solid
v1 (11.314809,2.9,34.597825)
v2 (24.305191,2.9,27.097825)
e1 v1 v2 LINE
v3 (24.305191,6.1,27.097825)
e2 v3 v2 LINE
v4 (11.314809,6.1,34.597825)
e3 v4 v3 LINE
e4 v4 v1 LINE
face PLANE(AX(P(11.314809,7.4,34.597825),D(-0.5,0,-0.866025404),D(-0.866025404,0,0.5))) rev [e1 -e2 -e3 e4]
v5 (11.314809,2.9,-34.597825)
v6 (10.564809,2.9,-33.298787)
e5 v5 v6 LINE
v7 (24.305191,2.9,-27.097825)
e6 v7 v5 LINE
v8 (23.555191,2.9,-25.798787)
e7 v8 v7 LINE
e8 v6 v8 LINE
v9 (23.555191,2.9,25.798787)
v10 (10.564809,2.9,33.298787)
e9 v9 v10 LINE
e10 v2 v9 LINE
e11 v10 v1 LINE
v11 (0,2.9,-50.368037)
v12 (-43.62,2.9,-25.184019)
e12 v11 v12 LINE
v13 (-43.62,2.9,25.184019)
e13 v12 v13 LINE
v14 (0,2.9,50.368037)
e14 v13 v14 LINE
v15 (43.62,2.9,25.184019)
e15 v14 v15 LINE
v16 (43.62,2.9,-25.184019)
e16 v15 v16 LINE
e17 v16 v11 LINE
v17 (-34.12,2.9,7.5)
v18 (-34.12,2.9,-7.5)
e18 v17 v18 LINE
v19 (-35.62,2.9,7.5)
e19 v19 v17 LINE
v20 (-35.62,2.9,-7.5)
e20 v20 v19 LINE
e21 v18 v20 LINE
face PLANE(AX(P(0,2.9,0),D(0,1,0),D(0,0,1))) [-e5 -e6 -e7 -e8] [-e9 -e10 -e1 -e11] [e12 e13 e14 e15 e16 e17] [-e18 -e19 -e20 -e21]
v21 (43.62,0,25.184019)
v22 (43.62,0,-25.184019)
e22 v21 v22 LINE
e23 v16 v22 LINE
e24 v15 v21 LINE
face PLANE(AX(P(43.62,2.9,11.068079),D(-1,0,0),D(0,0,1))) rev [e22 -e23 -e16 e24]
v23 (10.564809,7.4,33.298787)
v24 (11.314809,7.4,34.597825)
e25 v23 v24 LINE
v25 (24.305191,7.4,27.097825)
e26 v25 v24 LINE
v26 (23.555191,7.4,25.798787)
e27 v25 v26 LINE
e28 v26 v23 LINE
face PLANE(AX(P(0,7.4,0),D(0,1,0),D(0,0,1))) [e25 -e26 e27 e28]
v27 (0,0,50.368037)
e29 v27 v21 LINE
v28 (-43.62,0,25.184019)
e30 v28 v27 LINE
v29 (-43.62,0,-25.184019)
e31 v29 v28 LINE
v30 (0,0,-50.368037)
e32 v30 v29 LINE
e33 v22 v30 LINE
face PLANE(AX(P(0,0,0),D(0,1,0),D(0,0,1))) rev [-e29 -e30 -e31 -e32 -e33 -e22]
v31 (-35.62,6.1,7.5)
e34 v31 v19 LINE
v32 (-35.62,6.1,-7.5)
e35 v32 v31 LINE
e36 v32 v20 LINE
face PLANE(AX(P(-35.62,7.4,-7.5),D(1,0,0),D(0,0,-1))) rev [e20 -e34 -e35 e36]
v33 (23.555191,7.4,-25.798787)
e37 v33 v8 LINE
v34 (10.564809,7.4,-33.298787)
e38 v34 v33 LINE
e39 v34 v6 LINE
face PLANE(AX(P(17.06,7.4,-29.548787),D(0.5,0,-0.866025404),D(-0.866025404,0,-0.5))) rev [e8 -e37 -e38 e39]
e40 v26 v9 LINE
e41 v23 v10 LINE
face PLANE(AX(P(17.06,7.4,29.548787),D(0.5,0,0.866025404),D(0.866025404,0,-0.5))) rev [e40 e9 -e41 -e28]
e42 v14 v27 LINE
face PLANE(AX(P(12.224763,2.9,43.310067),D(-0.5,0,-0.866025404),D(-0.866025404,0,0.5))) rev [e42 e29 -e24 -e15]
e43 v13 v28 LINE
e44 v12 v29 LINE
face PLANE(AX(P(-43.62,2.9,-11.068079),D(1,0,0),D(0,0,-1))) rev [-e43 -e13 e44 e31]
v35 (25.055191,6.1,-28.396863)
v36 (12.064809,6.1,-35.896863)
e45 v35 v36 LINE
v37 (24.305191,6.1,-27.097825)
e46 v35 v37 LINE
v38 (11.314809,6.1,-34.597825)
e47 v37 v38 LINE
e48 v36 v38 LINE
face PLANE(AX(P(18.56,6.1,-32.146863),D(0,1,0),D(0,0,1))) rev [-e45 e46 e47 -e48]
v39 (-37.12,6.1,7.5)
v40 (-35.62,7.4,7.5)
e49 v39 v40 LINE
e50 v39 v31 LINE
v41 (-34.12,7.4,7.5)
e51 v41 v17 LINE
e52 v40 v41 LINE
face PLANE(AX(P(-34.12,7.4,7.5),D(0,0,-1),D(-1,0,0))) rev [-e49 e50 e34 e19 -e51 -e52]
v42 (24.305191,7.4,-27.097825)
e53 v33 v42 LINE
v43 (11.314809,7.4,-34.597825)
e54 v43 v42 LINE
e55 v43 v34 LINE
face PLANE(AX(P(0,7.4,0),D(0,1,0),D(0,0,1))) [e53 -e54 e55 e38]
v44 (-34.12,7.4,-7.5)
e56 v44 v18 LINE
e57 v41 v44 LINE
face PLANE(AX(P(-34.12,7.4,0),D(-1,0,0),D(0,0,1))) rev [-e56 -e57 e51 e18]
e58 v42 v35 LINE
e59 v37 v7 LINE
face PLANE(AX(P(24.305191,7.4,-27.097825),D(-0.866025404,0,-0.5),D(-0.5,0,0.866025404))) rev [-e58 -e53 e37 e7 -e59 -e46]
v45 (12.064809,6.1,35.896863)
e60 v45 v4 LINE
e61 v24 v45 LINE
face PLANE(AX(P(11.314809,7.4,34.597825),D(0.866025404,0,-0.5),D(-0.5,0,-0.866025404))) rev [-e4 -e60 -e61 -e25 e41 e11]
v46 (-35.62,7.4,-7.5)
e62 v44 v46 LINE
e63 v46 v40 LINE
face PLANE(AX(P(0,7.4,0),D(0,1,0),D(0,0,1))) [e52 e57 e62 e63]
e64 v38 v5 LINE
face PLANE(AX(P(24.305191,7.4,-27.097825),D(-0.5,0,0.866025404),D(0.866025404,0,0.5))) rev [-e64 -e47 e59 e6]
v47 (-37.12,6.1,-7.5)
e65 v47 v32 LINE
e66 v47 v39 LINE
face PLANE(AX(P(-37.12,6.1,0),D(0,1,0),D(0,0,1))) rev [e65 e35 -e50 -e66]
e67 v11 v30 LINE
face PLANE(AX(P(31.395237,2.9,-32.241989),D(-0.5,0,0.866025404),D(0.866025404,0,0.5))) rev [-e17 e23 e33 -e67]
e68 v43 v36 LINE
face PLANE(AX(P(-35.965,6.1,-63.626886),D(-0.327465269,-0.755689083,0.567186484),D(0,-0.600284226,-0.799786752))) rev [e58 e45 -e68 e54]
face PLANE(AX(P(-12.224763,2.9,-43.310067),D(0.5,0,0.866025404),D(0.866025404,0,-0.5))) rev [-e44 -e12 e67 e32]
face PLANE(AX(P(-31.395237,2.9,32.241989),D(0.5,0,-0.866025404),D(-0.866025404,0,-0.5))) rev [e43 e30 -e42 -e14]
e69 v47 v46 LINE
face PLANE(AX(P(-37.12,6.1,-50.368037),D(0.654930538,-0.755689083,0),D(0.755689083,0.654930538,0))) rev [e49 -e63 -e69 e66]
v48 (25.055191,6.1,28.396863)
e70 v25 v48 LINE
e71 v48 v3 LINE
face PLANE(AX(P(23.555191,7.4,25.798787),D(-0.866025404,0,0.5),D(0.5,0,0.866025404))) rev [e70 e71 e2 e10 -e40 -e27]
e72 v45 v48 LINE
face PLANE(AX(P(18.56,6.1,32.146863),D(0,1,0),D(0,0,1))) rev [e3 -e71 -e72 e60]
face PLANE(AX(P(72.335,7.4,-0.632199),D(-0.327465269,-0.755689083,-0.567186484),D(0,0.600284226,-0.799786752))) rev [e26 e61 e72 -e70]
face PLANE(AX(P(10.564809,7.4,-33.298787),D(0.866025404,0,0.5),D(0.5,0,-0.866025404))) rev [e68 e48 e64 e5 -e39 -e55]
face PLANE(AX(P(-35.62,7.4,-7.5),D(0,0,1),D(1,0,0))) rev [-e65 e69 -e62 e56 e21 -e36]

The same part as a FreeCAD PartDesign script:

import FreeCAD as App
import Part
import Sketcher
from FreeCAD import Vector
Q = App.Units.Quantity


def add_polygon(sketch, points):
    """Adds a closed chain of lines whose ends are joined by coincident constraints."""
    first, n = sketch.GeometryCount, len(points)
    for a, b in zip(points, points[1:] + points[:1]):
        sketch.addGeometry(Part.LineSegment(App.Vector(*a, 0), App.Vector(*b, 0)), False)
    for i in range(n):
        sketch.addConstraint(Sketcher.Constraint("Coincident", first + i, 2, first + (i + 1) % n, 1))

doc = App.newDocument("Part")
body = doc.addObject("PartDesign::Body", "Body")

sketch1 = body.newObject("Sketcher::SketchObject", "Sketch")
sketch1.AttachmentSupport = (doc.getObject("XZ_Plane"), [""])
sketch1.MapMode = "FlatFace"
add_polygon(sketch1, [(-44, -25), (-44, 25), (-31, 32), (0, 50), (12, 43), (44, 25), (44, -25), (31, -32), (0, -50), (-12, -43)])
sketch1.addConstraint([
    Sketcher.Constraint("Vertical", 0),
    Sketcher.Constraint("Vertical", 5),
    Sketcher.Constraint("Symmetric", 0, 2, 5, 2, -1, 1),
    Sketcher.Constraint("Symmetric", 1, 2, 6, 2, -1, 1),
    Sketcher.Constraint("Symmetric", 2, 2, 7, 2, -1, 1),
    Sketcher.Constraint("Symmetric", 3, 2, 8, 2, -1, 1),
    Sketcher.Constraint("PointOnObject", 2, 2, -2),
    Sketcher.Constraint("Parallel", 1, 2),
    Sketcher.Constraint("Parallel", 3, 4),
    Sketcher.Constraint("Parallel", 8, 9),
    Sketcher.Constraint("Horizontal", 0, 2, 4, 2),
    Sketcher.Constraint("Equal", 1, 3),
    Sketcher.Constraint("Angle", 1, Q("30 deg")),
    Sketcher.Constraint("DistanceX", 0, 2, -1, 1, 43.62),
    Sketcher.Constraint("Distance", 1, 14.11594),
    Sketcher.Constraint("DistanceY", 0, 1, 0, 2, 50.368037),
])
pad1 = body.newObject("PartDesign::Pad", "Pad")
pad1.Profile = sketch1
pad1.Length = 2.9
pad1.Reversed = True

sketch2 = body.newObject("Sketcher::SketchObject", "Sketch001")
sketch2.AttachmentSupport = (doc.getObject("XZ_Plane"), [""])
sketch2.MapMode = "FlatFace"
sketch2.AttachmentOffset = App.Placement(Vector(0, 0, -2.9), App.Rotation())
add_polygon(sketch2, [(-34.1, -7.5), (-35.6, -7.5), (-35.6, 7.5), (-34.1, 7.5)])
add_polygon(sketch2, [(10.6, 33.3), (11.3, 34.6), (24.3, 27.1), (23.6, 25.8)])
add_polygon(sketch2, [(23.6, -25.8), (24.3, -27.1), (11.3, -34.6), (10.6, -33.3)])
sketch2.addConstraint([
    Sketcher.Constraint("Horizontal", 0),
    Sketcher.Constraint("Vertical", 1),
    Sketcher.Constraint("Horizontal", 2),
    Sketcher.Constraint("Vertical", 3),
    Sketcher.Constraint("Symmetric", 5, 2, 8, 2, -1),
    Sketcher.Constraint("Symmetric", 4, 2, 9, 2, -1),
    Sketcher.Constraint("Symmetric", 7, 2, 10, 2, -1),
    Sketcher.Constraint("Symmetric", 6, 2, 11, 2, -1),
    Sketcher.Constraint("Perpendicular", 4, 5),
    Sketcher.Constraint("Perpendicular", 5, 6),
    Sketcher.Constraint("Perpendicular", 6, 7),
    Sketcher.Constraint("DistanceY", 1, 1, 1, 2, 15.0),
    Sketcher.Constraint("Angle", 4, Q("60 deg")),
    Sketcher.Constraint("Distance", 5, 15.0),
    Sketcher.Constraint("DistanceX", 0, 2, 0, 1, 1.5),
    Sketcher.Constraint("Distance", 4, 1.5),
    Sketcher.Constraint("DistanceY", 0, 2, -1, 1, 7.5),
    Sketcher.Constraint("DistanceX", 0, 2, -1, 1, 35.62),
    Sketcher.Constraint("DistanceX", -1, 1, 4, 2, 11.314809),
    Sketcher.Constraint("DistanceY", 8, 2, 6, 2, 52.896612),
])
pad2 = body.newObject("PartDesign::Pad", "Pad001")
pad2.Profile = sketch2
pad2.Length = 4.5
pad2.Reversed = True

sketch3 = body.newObject("Sketcher::SketchObject", "Sketch002")
sketch3.AttachmentSupport = (doc.getObject("YZ_Plane"), [""])
sketch3.MapMode = "FlatFace"
sketch3.AttachmentOffset = App.Placement(Vector(0, 0, -35.62), App.Rotation())
add_polygon(sketch3, [(7.4, -7.5), (6.1, -7.5), (6.1, 7.5), (7.4, 7.5)])
sketch3.addConstraint([
    Sketcher.Constraint("Horizontal", 0),
    Sketcher.Constraint("Vertical", 1),
    Sketcher.Constraint("Horizontal", 2),
    Sketcher.Constraint("Vertical", 3),
    Sketcher.Constraint("DistanceY", 1, 1, 1, 2, 15.0),
    Sketcher.Constraint("DistanceX", 0, 2, 0, 1, 1.3),
    Sketcher.Constraint("DistanceX", -1, 1, 0, 2, 6.1),
    Sketcher.Constraint("DistanceY", 0, 2, -1, 1, 7.5),
])
pad3 = body.newObject("PartDesign::Pad", "Pad002")
pad3.Profile = sketch3
pad3.Length = 1.5
pad3.Reversed = True

sketch4 = body.newObject("Sketcher::SketchObject", "Sketch003")
sketch4.Placement = App.Placement(Vector(17.81, 0, 30.847825), App.Rotation(Vector(0.866025404, 0, -0.5), Vector(0, 1, 0), Vector(0.5, 0, 0.866025404), "ZXY"))
add_polygon(sketch4, [(-7.5, 7.4), (-7.5, 6.1), (7.5, 6.1), (7.5, 7.4)])
sketch4.addConstraint([
    Sketcher.Constraint("Vertical", 0),
    Sketcher.Constraint("Horizontal", 1),
    Sketcher.Constraint("Vertical", 2),
    Sketcher.Constraint("Horizontal", 3),
    Sketcher.Constraint("DistanceX", 1, 1, 1, 2, 15.0),
    Sketcher.Constraint("DistanceY", 0, 2, 0, 1, 1.3),
    Sketcher.Constraint("DistanceX", 0, 2, -1, 1, 7.5),
    Sketcher.Constraint("DistanceY", -1, 1, 0, 2, 6.1),
])
pad4 = body.newObject("PartDesign::Pad", "Pad003")
pad4.Profile = sketch4
pad4.Length = 1.5

sketch5 = body.newObject("Sketcher::SketchObject", "Sketch004")
sketch5.Placement = App.Placement(Vector(17.81, 0, -30.847825), App.Rotation(Vector(-0.866025404, 0, -0.5), Vector(0, 1, 0), Vector(0.5, 0, -0.866025404), "ZXY"))
add_polygon(sketch5, [(-7.5, 7.4), (-7.5, 6.1), (7.5, 6.1), (7.5, 7.4)])
sketch5.addConstraint([
    Sketcher.Constraint("Vertical", 0),
    Sketcher.Constraint("Horizontal", 1),
    Sketcher.Constraint("Vertical", 2),
    Sketcher.Constraint("Horizontal", 3),
    Sketcher.Constraint("DistanceX", 1, 1, 1, 2, 15.0),
    Sketcher.Constraint("DistanceY", 0, 2, 0, 1, 1.3),
    Sketcher.Constraint("DistanceX", 0, 2, -1, 1, 7.5),
    Sketcher.Constraint("DistanceY", -1, 1, 0, 2, 6.1),
])
pad5 = body.newObject("PartDesign::Pad", "Pad004")
pad5.Profile = sketch5
pad5.Length = 1.5

sketch6 = body.newObject("Sketcher::SketchObject", "Sketch005")
sketch6.Placement = App.Placement(Vector(-6.495191, 0, 3.75), App.Rotation(Vector(0.5, 0, 0.866025404), Vector(0, 1, 0), Vector(-0.866025404, 0, 0.5), "ZXY"))
add_polygon(sketch6, [(35.6, 7.4), (37.1, 6.1), (38.5, 5.8), (38.7, 9.4), (36.4, 10.1)])
sketch6.addConstraint([
    Sketcher.Constraint("DistanceY", -1, 1, 0, 2, 6.1),
    Sketcher.Constraint("DistanceY", -1, 1, 4, 2, 7.4),
    Sketcher.Constraint("DistanceX", 4, 2, 0, 2, 1.5),
    Sketcher.Constraint("DistanceX", -1, 1, 0, 2, 37.12),
    Sketcher.Constraint("DistanceX", -1, 1, 3, 2, 36.37),
    Sketcher.Constraint("DistanceY", 1, 2, 2, 2, 3.548198),
    Sketcher.Constraint("Distance", 3, 2.403431),
    Sketcher.Constraint("Distance", 4, 2.824052),
    Sketcher.Constraint("DistanceY", -1, 1, 1, 2, 5.843708),
    Sketcher.Constraint("Distance", 1, 1.425997),
])
pocket1 = body.newObject("PartDesign::Pocket", "Pocket")
pocket1.Profile = sketch6
pocket1.Type = "ThroughAll"

sketch7 = body.newObject("Sketcher::SketchObject", "Sketch006")
sketch7.Placement = App.Placement(Vector(6.495191, 0, 3.75), App.Rotation(Vector(0.5, 0, -0.866025404), Vector(0, 1, 0), Vector(0.866025404, 0, 0.5), "ZXY"))
add_polygon(sketch7, [(37.56, 7.89), (35.62, 7.89), (35.62, 7.4), (37.12, 6.1), (37.69, 6.04), (38.14, 7.11)])
sketch7.addConstraint([
    Sketcher.Constraint("Horizontal", 0),
    Sketcher.Constraint("Vertical", 1),
    Sketcher.Constraint("DistanceY", -1, 1, 1, 2, 7.4),
    Sketcher.Constraint("DistanceY", -1, 1, 2, 2, 6.1),
    Sketcher.Constraint("DistanceX", 1, 2, 2, 2, 1.5),
    Sketcher.Constraint("DistanceX", -1, 1, 0, 2, 35.62),
    Sketcher.Constraint("Distance", 3, 0.568961),
    Sketcher.Constraint("DistanceX", 0, 2, 0, 1, 1.936004),
    Sketcher.Constraint("DistanceY", 1, 2, 1, 1, 0.492315),
    Sketcher.Constraint("DistanceY", 3, 2, 0, 2, 1.85437),
    Sketcher.Constraint("DistanceX", 3, 2, 4, 2, 0.45347),
    Sketcher.Constraint("Distance", 4, 1.168567),
])
pocket2 = body.newObject("PartDesign::Pocket", "Pocket001")
pocket2.Profile = sketch7
pocket2.Type = "ThroughAll"

sketch8 = body.newObject("Sketcher::SketchObject", "Sketch007")
sketch8.AttachmentSupport = (doc.getObject("XY_Plane"), [""])
sketch8.MapMode = "FlatFace"
sketch8.AttachmentOffset = App.Placement(Vector(0, 0, 7.5), App.Rotation())
add_polygon(sketch8, [(-35.6, 7.4), (-35.6, 8.4), (-38.6, 7.7), (-38.3, 5.9), (-37.5, 5.5), (-37.1, 6.1)])
sketch8.addConstraint([
    Sketcher.Constraint("Vertical", 0),
    Sketcher.Constraint("DistanceY", -1, 1, 4, 2, 6.1),
    Sketcher.Constraint("DistanceY", -1, 1, 5, 2, 7.4),
    Sketcher.Constraint("DistanceX", 4, 2, 0, 2, 1.5),
    Sketcher.Constraint("DistanceX", 0, 2, -1, 1, 35.62),
    Sketcher.Constraint("DistanceY", 3, 2, 2, 2, 0.3853),
    Sketcher.Constraint("Distance", 1, 3.031951),
    Sketcher.Constraint("Distance", 2, 1.90346),
    Sketcher.Constraint("Distance", 3, 0.83581),
    Sketcher.Constraint("DistanceY", 0, 1, 0, 2, 1.016433),
    Sketcher.Constraint("DistanceY", -1, 1, 1, 2, 7.742158),
    Sketcher.Constraint("DistanceY", -1, 1, 2, 2, 5.863822),
])
pocket3 = body.newObject("PartDesign::Pocket", "Pocket002")
pocket3.Profile = sketch8
pocket3.Type = "ThroughAll"

doc.recompute()
